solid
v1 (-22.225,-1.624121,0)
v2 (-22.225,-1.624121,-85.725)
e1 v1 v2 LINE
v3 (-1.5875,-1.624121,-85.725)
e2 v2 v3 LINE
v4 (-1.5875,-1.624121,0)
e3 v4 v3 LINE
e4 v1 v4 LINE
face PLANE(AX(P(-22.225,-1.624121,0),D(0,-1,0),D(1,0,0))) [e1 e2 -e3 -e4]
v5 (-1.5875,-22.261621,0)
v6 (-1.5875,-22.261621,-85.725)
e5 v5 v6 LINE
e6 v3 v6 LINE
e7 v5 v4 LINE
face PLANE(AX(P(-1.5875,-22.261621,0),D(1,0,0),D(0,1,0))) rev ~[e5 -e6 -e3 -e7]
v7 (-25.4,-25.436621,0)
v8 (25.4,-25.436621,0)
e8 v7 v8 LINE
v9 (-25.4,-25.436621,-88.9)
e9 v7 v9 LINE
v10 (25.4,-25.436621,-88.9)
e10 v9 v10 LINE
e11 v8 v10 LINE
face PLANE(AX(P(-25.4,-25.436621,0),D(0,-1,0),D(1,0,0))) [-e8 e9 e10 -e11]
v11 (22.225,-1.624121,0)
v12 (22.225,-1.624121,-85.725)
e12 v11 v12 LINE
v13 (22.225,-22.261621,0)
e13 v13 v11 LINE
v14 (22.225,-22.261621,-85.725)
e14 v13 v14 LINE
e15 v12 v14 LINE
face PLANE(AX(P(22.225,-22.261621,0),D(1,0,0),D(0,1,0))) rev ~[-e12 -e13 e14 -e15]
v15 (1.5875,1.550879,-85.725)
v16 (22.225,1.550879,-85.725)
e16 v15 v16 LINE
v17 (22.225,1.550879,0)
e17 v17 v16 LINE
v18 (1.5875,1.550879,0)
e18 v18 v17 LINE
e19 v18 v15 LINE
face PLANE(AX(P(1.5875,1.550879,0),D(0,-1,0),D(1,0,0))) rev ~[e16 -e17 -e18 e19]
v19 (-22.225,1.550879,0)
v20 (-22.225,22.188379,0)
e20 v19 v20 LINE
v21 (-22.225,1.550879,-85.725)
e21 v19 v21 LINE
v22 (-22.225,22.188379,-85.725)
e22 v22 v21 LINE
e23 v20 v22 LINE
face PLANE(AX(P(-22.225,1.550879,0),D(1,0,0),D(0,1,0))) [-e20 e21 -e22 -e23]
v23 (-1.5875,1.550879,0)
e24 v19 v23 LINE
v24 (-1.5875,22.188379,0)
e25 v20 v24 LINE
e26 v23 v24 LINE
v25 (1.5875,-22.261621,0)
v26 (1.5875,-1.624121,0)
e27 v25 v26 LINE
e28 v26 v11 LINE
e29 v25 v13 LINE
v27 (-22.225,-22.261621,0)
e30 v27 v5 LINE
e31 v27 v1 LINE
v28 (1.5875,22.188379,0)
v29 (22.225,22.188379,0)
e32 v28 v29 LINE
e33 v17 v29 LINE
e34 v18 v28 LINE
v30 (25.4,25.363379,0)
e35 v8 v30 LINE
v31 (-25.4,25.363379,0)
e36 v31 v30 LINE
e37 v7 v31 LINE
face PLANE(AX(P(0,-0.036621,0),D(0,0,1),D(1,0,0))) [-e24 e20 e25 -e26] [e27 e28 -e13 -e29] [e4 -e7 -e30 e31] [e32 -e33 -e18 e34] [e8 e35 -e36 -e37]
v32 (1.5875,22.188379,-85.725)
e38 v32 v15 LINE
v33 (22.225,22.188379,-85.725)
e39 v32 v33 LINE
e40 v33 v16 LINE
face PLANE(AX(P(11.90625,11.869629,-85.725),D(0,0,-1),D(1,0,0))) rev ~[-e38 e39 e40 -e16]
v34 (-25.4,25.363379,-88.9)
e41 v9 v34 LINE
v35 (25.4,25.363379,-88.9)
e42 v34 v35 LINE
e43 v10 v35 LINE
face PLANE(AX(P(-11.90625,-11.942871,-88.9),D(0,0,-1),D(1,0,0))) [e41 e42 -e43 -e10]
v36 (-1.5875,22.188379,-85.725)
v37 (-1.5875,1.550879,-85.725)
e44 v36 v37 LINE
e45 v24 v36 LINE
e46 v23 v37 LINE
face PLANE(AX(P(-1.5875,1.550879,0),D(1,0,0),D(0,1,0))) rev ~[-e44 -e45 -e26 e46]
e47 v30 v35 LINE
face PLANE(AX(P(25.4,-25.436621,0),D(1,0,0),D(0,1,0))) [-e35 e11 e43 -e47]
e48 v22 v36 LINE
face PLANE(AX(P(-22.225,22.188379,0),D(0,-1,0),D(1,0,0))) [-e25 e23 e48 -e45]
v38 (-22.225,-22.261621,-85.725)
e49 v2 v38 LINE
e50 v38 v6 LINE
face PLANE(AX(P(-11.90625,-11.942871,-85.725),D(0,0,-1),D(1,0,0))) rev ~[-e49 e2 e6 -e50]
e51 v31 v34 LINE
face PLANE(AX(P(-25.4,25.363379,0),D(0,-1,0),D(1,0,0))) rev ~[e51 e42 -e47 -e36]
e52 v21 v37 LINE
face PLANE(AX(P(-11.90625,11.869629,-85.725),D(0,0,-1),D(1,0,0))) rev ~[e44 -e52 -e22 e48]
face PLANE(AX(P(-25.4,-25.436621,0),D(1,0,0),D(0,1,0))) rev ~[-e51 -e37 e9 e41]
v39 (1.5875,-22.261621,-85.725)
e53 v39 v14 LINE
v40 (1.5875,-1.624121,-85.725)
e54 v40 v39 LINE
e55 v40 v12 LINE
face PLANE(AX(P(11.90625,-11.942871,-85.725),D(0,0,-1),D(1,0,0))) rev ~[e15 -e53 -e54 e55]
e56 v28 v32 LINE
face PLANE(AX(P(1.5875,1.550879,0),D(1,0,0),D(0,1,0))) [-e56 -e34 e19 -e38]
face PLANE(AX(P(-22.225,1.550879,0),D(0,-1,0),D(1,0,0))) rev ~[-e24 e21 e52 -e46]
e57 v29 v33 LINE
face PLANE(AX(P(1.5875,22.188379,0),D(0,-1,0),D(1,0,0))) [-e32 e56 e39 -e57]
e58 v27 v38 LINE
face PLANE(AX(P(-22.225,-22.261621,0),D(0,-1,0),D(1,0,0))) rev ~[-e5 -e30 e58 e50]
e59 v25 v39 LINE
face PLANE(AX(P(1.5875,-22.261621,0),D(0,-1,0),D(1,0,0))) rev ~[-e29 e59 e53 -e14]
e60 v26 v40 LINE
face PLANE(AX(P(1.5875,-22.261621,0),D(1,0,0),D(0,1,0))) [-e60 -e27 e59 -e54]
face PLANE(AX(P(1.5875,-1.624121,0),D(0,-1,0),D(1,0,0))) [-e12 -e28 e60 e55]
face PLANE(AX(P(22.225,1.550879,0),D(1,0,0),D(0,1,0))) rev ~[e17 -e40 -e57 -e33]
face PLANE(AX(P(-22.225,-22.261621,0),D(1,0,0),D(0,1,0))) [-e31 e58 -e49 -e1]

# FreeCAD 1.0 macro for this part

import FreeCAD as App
import Part
import Sketcher

V = App.Vector
Q = App.Units.Quantity


def add_polygon(sketch, points):
    """Adds a closed chain of lines whose ends are joined by coincident constraints."""
    first, n = sketch.GeometryCount, len(points)
    for a, b in zip(points, points[1:] + points[:1]):
        sketch.addGeometry(Part.LineSegment(App.Vector(*a, 0), App.Vector(*b, 0)), False)
    for i in range(n):
        sketch.addConstraint(Sketcher.Constraint("Coincident", first + i, 2, first + (i + 1) % n, 1))

doc = App.newDocument("Part")
params = doc.addObject("Spreadsheet::Sheet", "Params")
for row, (alias, value) in enumerate([
    ("sketch1_width", "2 in"),
    ("sketch1_width2", "0.8125 in"),
    ("pad1_length", "3.5 in"),
    ("sketch2_width", "0.8125 in"),
    ("pad2_length", "0.125 in"),
], start=1):
    params.set(f"A{row}", alias)
    params.set(f"B{row}", "=" + value)
    params.setAlias(f"B{row}", alias)

body = doc.addObject("PartDesign::Body", "Body")

sketch1 = doc.addObject("Sketcher::SketchObject", "Sketch")
body.addObject(sketch1)
sketch1.AttachmentSupport = (doc.XY_Plane, [""])
sketch1.MapMode = "FlatFace"
add_polygon(sketch1, [(-25.4, 25.363379), (-25.4, -25.436621), (25.4, -25.436621), (25.4, 25.363379)])
add_polygon(sketch1, [(-1.5875, -22.261621), (-22.225, -22.261621), (-22.225, -1.624121), (-1.5875, -1.624121)])
add_polygon(sketch1, [(22.225, -22.261621), (1.5875, -22.261621), (1.5875, -1.624121), (22.225, -1.624121)])
add_polygon(sketch1, [(-1.5875, 1.550879), (-22.225, 1.550879), (-22.225, 22.188379), (-1.5875, 22.188379)])
add_polygon(sketch1, [(22.225, 1.550879), (1.5875, 1.550879), (1.5875, 22.188379), (22.225, 22.188379)])
sketch1.addConstraint([
    Sketcher.Constraint("Vertical", 0),
    Sketcher.Constraint("Horizontal", 1),
    Sketcher.Constraint("Vertical", 2),
    Sketcher.Constraint("Horizontal", 3),
    Sketcher.Constraint("Horizontal", 4),
    Sketcher.Constraint("Vertical", 5),
    Sketcher.Constraint("Horizontal", 6),
    Sketcher.Constraint("Vertical", 7),
    Sketcher.Constraint("Horizontal", 8),
    Sketcher.Constraint("Vertical", 9),
    Sketcher.Constraint("Horizontal", 10),
    Sketcher.Constraint("Vertical", 11),
    Sketcher.Constraint("Horizontal", 12),
    Sketcher.Constraint("Vertical", 13),
    Sketcher.Constraint("Horizontal", 14),
    Sketcher.Constraint("Vertical", 15),
    Sketcher.Constraint("Horizontal", 16),
    Sketcher.Constraint("Vertical", 17),
    Sketcher.Constraint("Horizontal", 18),
    Sketcher.Constraint("Vertical", 19),
    Sketcher.Constraint("Symmetric", 7, 2, 8, 2, -2),
    Sketcher.Constraint("Symmetric", 5, 2, 10, 2, -2),
    Sketcher.Constraint("Symmetric", 15, 2, 16, 2, -2),
    Sketcher.Constraint("Symmetric", 13, 2, 18, 2, -2),
    Sketcher.Constraint("Vertical", 5, 2, 12, 2),
    Sketcher.Constraint("Vertical", 7, 2, 14, 2),
    Sketcher.Constraint("Equal", 3, 0),
    Sketcher.Constraint("Equal", 18, 5),
    Sketcher.Constraint("Equal", 11, 13),
    Sketcher.Constraint("DistanceX", 1, 1, 1, 2, Q("2 in")),
    Sketcher.Constraint("DistanceX", 0, 2, -1, 1, Q("1 in")),
    Sketcher.Constraint("DistanceX", 4, 2, 4, 1, Q("0.8125 in")),
    Sketcher.Constraint("DistanceX", 4, 2, -1, 1, Q("0.875 in")),
    Sketcher.Constraint("DistanceY", 0, 2, 4, 2, Q("0.125 in")),
    Sketcher.Constraint("DistanceY", 5, 2, 12, 2, Q("0.125 in")),
    Sketcher.Constraint("DistanceY", 0, 2, -1, 1, 25.436621),
])
sketch1.setExpression("Constraints[49]", "Params.sketch1_width")
sketch1.setExpression("Constraints[51]", "Params.sketch1_width2")
pad1 = doc.addObject("PartDesign::Pad", "Pad")
body.addObject(pad1)
pad1.Profile = sketch1
pad1.setExpression("Length", "Params.pad1_length")
pad1.Reversed = True

sketch2 = doc.addObject("Sketcher::SketchObject", "Sketch001")
body.addObject(sketch2)
sketch2.AttachmentSupport = (doc.XY_Plane, [""])
sketch2.MapMode = "FlatFace"
sketch2.AttachmentOffset = App.Placement(V(0, 0, -3.5 * 25.4), App.Rotation())
add_polygon(sketch2, [(-22.225, -22.261621), (-22.225, -1.624121), (-1.5875, -1.624121), (-1.5875, -22.261621)])
add_polygon(sketch2, [(1.5875, -22.261621), (1.5875, -1.624121), (22.225, -1.624121), (22.225, -22.261621)])
add_polygon(sketch2, [(1.5875, 1.550879), (1.5875, 22.188379), (22.225, 22.188379), (22.225, 1.550879)])
add_polygon(sketch2, [(-22.225, 1.550879), (-22.225, 22.188379), (-1.5875, 22.188379), (-1.5875, 1.550879)])
sketch2.addConstraint([
    Sketcher.Constraint("Vertical", 0),
    Sketcher.Constraint("Horizontal", 1),
    Sketcher.Constraint("Vertical", 2),
    Sketcher.Constraint("Horizontal", 3),
    Sketcher.Constraint("Vertical", 4),
    Sketcher.Constraint("Horizontal", 5),
    Sketcher.Constraint("Vertical", 6),
    Sketcher.Constraint("Horizontal", 7),
    Sketcher.Constraint("Vertical", 8),
    Sketcher.Constraint("Horizontal", 9),
    Sketcher.Constraint("Vertical", 10),
    Sketcher.Constraint("Horizontal", 11),
    Sketcher.Constraint("Vertical", 12),
    Sketcher.Constraint("Horizontal", 13),
    Sketcher.Constraint("Vertical", 14),
    Sketcher.Constraint("Horizontal", 15),
    Sketcher.Constraint("Symmetric", 1, 2, 4, 2, -2),
    Sketcher.Constraint("Symmetric", 3, 2, 6, 2, -2),
    Sketcher.Constraint("Symmetric", 9, 2, 12, 2, -2),
    Sketcher.Constraint("Symmetric", 11, 2, 14, 2, -2),
    Sketcher.Constraint("Vertical", 7, 2, 8, 2),
    Sketcher.Constraint("Vertical", 6, 2, 9, 2),
    Sketcher.Constraint("Equal", 15, 0),
    Sketcher.Constraint("Equal", 6, 8),
    Sketcher.Constraint("DistanceX", 1, 1, 1, 2, Q("0.8125 in")),
    Sketcher.Constraint("DistanceX", 0, 2, 5, 2, Q("1.75 in")),
    Sketcher.Constraint("DistanceY", 7, 2, 8, 2, Q("1.75 in")),
    Sketcher.Constraint("DistanceY", 0, 2, -1, 1, 1.624121),
])
sketch2.setExpression("Constraints[40]", "Params.sketch2_width")
pad2 = doc.addObject("PartDesign::Pad", "Pad001")
body.addObject(pad2)
pad2.Profile = sketch2
pad2.setExpression("Length", "Params.pad2_length")

doc.recompute()
